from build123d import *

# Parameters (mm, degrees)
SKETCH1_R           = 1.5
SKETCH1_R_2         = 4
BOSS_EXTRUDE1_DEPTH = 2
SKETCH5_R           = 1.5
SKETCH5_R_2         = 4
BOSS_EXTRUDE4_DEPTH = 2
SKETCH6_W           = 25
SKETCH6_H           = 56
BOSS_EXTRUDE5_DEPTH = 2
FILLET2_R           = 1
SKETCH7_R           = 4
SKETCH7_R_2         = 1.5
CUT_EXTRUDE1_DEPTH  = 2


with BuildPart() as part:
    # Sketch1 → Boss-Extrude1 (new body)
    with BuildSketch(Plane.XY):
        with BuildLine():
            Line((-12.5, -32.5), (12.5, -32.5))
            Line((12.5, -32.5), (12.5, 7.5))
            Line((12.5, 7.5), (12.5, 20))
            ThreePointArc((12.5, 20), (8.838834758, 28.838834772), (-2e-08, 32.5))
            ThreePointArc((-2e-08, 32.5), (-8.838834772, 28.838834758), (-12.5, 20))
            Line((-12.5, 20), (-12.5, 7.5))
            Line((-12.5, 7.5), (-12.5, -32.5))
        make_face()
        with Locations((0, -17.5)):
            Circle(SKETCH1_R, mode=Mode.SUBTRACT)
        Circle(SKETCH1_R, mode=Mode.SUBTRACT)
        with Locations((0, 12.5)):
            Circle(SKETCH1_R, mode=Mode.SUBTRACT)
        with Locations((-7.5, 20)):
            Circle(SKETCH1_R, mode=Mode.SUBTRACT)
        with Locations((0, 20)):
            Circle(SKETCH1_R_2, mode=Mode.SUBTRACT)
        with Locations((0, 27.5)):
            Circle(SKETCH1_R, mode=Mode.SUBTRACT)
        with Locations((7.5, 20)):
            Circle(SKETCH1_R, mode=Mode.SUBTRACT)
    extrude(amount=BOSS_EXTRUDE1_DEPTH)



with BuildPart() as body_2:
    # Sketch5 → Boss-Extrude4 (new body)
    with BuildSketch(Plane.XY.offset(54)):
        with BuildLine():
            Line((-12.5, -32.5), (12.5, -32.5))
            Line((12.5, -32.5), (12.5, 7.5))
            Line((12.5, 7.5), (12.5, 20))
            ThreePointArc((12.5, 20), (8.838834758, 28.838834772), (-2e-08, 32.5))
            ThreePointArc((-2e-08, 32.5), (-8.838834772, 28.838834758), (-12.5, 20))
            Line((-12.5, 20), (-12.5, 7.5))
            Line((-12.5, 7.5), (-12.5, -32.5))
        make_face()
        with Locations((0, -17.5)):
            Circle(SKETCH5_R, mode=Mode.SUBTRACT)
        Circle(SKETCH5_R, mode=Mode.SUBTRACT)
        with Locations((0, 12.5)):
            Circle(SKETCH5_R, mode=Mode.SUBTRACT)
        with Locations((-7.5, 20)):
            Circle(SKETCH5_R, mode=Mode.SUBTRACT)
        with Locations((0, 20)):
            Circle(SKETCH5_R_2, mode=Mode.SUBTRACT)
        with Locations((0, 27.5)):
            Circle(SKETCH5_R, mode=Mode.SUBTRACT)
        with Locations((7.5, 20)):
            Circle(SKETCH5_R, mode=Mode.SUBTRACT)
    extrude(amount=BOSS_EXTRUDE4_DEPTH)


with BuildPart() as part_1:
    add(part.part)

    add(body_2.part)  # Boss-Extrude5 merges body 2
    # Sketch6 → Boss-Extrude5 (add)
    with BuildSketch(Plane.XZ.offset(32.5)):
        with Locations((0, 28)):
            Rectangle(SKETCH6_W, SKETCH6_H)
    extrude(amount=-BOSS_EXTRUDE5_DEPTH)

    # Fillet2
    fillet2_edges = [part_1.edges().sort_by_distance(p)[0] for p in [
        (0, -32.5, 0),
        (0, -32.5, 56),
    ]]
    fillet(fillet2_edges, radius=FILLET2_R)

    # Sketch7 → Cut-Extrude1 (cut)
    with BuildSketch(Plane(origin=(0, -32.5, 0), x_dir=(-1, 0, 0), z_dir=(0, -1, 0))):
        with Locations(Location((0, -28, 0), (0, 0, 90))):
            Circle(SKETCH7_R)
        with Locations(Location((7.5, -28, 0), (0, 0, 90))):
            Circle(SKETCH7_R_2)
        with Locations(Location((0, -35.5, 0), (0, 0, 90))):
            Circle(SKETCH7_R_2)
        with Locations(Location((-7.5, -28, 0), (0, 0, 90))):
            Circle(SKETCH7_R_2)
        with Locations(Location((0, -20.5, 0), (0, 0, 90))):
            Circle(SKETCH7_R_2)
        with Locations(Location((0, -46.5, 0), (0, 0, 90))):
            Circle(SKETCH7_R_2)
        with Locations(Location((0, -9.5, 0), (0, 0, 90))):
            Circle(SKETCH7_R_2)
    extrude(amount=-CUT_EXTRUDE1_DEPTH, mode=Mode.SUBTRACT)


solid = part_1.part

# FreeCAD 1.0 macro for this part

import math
import FreeCAD as App
import Part
import Sketcher


def edges_at(feature, points):
    """Names of the edges that pass closest to the given points."""
    edges = feature.Shape.Edges
    near = lambda p: min(range(len(edges)), key=lambda i: edges[i].distToShape(Part.Vertex(*p))[0])
    return sorted({f"Edge{near(p) + 1}" for p in points})

doc = App.newDocument("Part")
body = doc.addObject("PartDesign::Body", "Body")

# Sketch on XY plane
sketch1 = body.newObject("Sketcher::SketchObject", "Sketch")
sketch1.AttachmentSupport = (doc.getObject("XY_Plane"), [""])
sketch1.MapMode = "FlatFace"
sketch1.addGeometry([
    Part.LineSegment(App.Vector(-12.5, -32.5, 0), App.Vector(12.5, -32.5, 0)),  # 0
    Part.LineSegment(App.Vector(12.5, -32.5, 0), App.Vector(12.5, 20, 0)),  # 1
    Part.ArcOfCircle(Part.Circle(App.Vector(0, 20, 0), App.Vector(0, 0, 1), 12.5), math.radians(0), math.radians(90)),  # 2
    Part.ArcOfCircle(Part.Circle(App.Vector(0, 20, 0), App.Vector(0, 0, 1), 12.5), math.radians(90), math.radians(180)),  # 3
    Part.LineSegment(App.Vector(-12.5, 20, 0), App.Vector(-12.5, -32.5, 0)),  # 4
    Part.Circle(App.Vector(0, -17.5, 0), App.Vector(0, 0, 1), 1.5),  # 5
    Part.Circle(App.Vector(0, 0, 0), App.Vector(0, 0, 1), 1.5),  # 6
    Part.Circle(App.Vector(-7.5, 20, 0), App.Vector(0, 0, 1), 1.5),  # 7
    Part.Circle(App.Vector(0, 12.5, 0), App.Vector(0, 0, 1), 1.5),  # 8
    Part.Circle(App.Vector(0, 20, 0), App.Vector(0, 0, 1), 4),  # 9
    Part.Circle(App.Vector(0, 27.5, 0), App.Vector(0, 0, 1), 1.5),  # 10
    Part.Circle(App.Vector(7.5, 20, 0), App.Vector(0, 0, 1), 1.5),  # 11
], False)
sketch1.addConstraint([
    Sketcher.Constraint("Coincident", 0, 2, 1, 1),
    Sketcher.Constraint("Tangent", 1, 2, 2, 1),
    Sketcher.Constraint("Tangent", 2, 2, 3, 1),
    Sketcher.Constraint("Tangent", 3, 2, 4, 1),
    Sketcher.Constraint("Coincident", 4, 2, 0, 1),
    Sketcher.Constraint("Horizontal", 0),
    Sketcher.Constraint("Vertical", 1),
    Sketcher.Constraint("Vertical", 4),
    Sketcher.Constraint("Coincident", 6, 3, -1, 1),
    Sketcher.Constraint("Coincident", 9, 3, 2, 3),
    Sketcher.Constraint("Equal", 2, 3),
    Sketcher.Constraint("Equal", 5, 6),
    Sketcher.Constraint("Equal", 6, 7),
    Sketcher.Constraint("Equal", 7, 8),
    Sketcher.Constraint("Equal", 8, 10),
    Sketcher.Constraint("Equal", 10, 11),
    Sketcher.Constraint("Symmetric", 7, 3, 11, 3, -2),
    Sketcher.Constraint("PointOnObject", 2, 3, -2),
    Sketcher.Constraint("PointOnObject", 5, 3, -2),
    Sketcher.Constraint("PointOnObject", 8, 3, -2),
    Sketcher.Constraint("PointOnObject", 10, 3, -2),
    Sketcher.Constraint("PointOnObject", 2, 2, -2),
    Sketcher.Constraint("Horizontal", 3, 3, 7, 3),
    Sketcher.Constraint("Diameter", 5, 3.0),
    Sketcher.Constraint("Diameter", 9, 8.0),
    Sketcher.Constraint("Radius", 2, 12.5),
    Sketcher.Constraint("DistanceY", 1, 1, 1, 2, 52.5),
    Sketcher.Constraint("DistanceY", -1, 1, 2, 3, 20.0),
    Sketcher.Constraint("DistanceY", 5, 3, 8, 3, 30.0),
    Sketcher.Constraint("DistanceY", 8, 3, 10, 3, 15.0),
    Sketcher.Constraint("DistanceY", 0, 2, 5, 3, 15.0),
    Sketcher.Constraint("DistanceX", 11, 3, 0, 2, 5.0),
])
pad1 = body.newObject("PartDesign::Pad", "Pad")
pad1.Profile = sketch1
pad1.Length = 2
body2 = doc.addObject("PartDesign::Body", "Body001")

# Sketch on XY plane
sketch2 = body2.newObject("Sketcher::SketchObject", "Sketch001")
sketch2.AttachmentSupport = (doc.getObject("XY_Plane001"), [""])
sketch2.MapMode = "FlatFace"
sketch2.AttachmentOffset = App.Placement(App.Vector(0, 0, 54), App.Rotation())
sketch2.addGeometry([
    Part.LineSegment(App.Vector(-12.5, -32.5, 0), App.Vector(12.5, -32.5, 0)),  # 0
    Part.LineSegment(App.Vector(12.5, -32.5, 0), App.Vector(12.5, 20, 0)),  # 1
    Part.ArcOfCircle(Part.Circle(App.Vector(0, 20, 0), App.Vector(0, 0, 1), 12.5), math.radians(0), math.radians(90)),  # 2
    Part.ArcOfCircle(Part.Circle(App.Vector(0, 20, 0), App.Vector(0, 0, 1), 12.5), math.radians(90), math.radians(180)),  # 3
    Part.LineSegment(App.Vector(-12.5, 20, 0), App.Vector(-12.5, -32.5, 0)),  # 4
    Part.Circle(App.Vector(0, -17.5, 0), App.Vector(0, 0, 1), 1.5),  # 5
    Part.Circle(App.Vector(0, 0, 0), App.Vector(0, 0, 1), 1.5),  # 6
    Part.Circle(App.Vector(-7.5, 20, 0), App.Vector(0, 0, 1), 1.5),  # 7
    Part.Circle(App.Vector(0, 12.5, 0), App.Vector(0, 0, 1), 1.5),  # 8
    Part.Circle(App.Vector(0, 20, 0), App.Vector(0, 0, 1), 4),  # 9
    Part.Circle(App.Vector(0, 27.5, 0), App.Vector(0, 0, 1), 1.5),  # 10
    Part.Circle(App.Vector(7.5, 20, 0), App.Vector(0, 0, 1), 1.5),  # 11
], False)
sketch2.addConstraint([
    Sketcher.Constraint("Coincident", 0, 2, 1, 1),
    Sketcher.Constraint("Tangent", 1, 2, 2, 1),
    Sketcher.Constraint("Tangent", 2, 2, 3, 1),
    Sketcher.Constraint("Tangent", 3, 2, 4, 1),
    Sketcher.Constraint("Coincident", 4, 2, 0, 1),
    Sketcher.Constraint("Horizontal", 0),
    Sketcher.Constraint("Vertical", 1),
    Sketcher.Constraint("Vertical", 4),
    Sketcher.Constraint("Coincident", 6, 3, -1, 1),
    Sketcher.Constraint("Coincident", 9, 3, 2, 3),
    Sketcher.Constraint("Equal", 2, 3),
    Sketcher.Constraint("Equal", 5, 6),
    Sketcher.Constraint("Equal", 6, 7),
    Sketcher.Constraint("Equal", 7, 8),
    Sketcher.Constraint("Equal", 8, 10),
    Sketcher.Constraint("Equal", 10, 11),
    Sketcher.Constraint("Symmetric", 7, 3, 11, 3, -2),
    Sketcher.Constraint("PointOnObject", 2, 3, -2),
    Sketcher.Constraint("PointOnObject", 5, 3, -2),
    Sketcher.Constraint("PointOnObject", 8, 3, -2),
    Sketcher.Constraint("PointOnObject", 10, 3, -2),
    Sketcher.Constraint("PointOnObject", 2, 2, -2),
    Sketcher.Constraint("Horizontal", 3, 3, 7, 3),
    Sketcher.Constraint("Diameter", 5, 3.0),
    Sketcher.Constraint("Diameter", 9, 8.0),
    Sketcher.Constraint("Radius", 2, 12.5),
    Sketcher.Constraint("DistanceY", 1, 1, 1, 2, 52.5),
    Sketcher.Constraint("DistanceY", -1, 1, 2, 3, 20.0),
    Sketcher.Constraint("DistanceY", 5, 3, 8, 3, 30.0),
    Sketcher.Constraint("DistanceY", 8, 3, 10, 3, 15.0),
    Sketcher.Constraint("DistanceY", 0, 2, 5, 3, 15.0),
    Sketcher.Constraint("DistanceX", 11, 3, 0, 2, 5.0),
])
pad2 = body2.newObject("PartDesign::Pad", "Pad001")
pad2.Profile = sketch2
pad2.Length = 2
body.AllowCompound = True
doc.recompute()

boolean = body.newObject("PartDesign::Boolean", "Boolean")
boolean.Type = "Fuse"
boolean.addObjects([body2])

# Sketch on XZ plane
sketch3 = body.newObject("Sketcher::SketchObject", "Sketch002")
sketch3.AttachmentSupport = (doc.getObject("XZ_Plane"), [""])
sketch3.MapMode = "FlatFace"
sketch3.AttachmentOffset = App.Placement(App.Vector(0, 0, 32.5), App.Rotation())
sketch3.addGeometry([
    Part.LineSegment(App.Vector(-12.5, 56, 0), App.Vector(-12.5, 0, 0)),
    Part.LineSegment(App.Vector(-12.5, 0, 0), App.Vector(12.5, 0, 0)),
    Part.LineSegment(App.Vector(12.5, 0, 0), App.Vector(12.5, 56, 0)),
    Part.LineSegment(App.Vector(12.5, 56, 0), App.Vector(-12.5, 56, 0)),
], False)
sketch3.addConstraint([
    Sketcher.Constraint("Coincident", 0, 2, 1, 1),
    Sketcher.Constraint("Coincident", 1, 2, 2, 1),
    Sketcher.Constraint("Coincident", 2, 2, 3, 1),
    Sketcher.Constraint("Coincident", 3, 2, 0, 1),
    Sketcher.Constraint("Vertical", 0),
    Sketcher.Constraint("Horizontal", 1),
    Sketcher.Constraint("Vertical", 2),
    Sketcher.Constraint("Horizontal", 3),
    Sketcher.Constraint("Symmetric", 0, 2, 1, 2, -1, 1),
    Sketcher.Constraint("DistanceX", 1, 1, 1, 2, 25.0),
    Sketcher.Constraint("DistanceY", 0, 2, 0, 1, 56.0),
])
pad3 = body.newObject("PartDesign::Pad", "Pad002")
pad3.Profile = sketch3
pad3.Length = 2
pad3.Reversed = True
doc.recompute()

fillet = body.newObject("PartDesign::Fillet", "Fillet")
fillet.Base = (pad3, edges_at(pad3, [(0, -32.5, 0), (0, -32.5, 56)]))
fillet.Radius = 1

# Sketch on XZ plane
sketch4 = body.newObject("Sketcher::SketchObject", "Sketch003")
sketch4.AttachmentSupport = (doc.getObject("XZ_Plane"), [""])
sketch4.MapMode = "FlatFace"
sketch4.AttachmentOffset = App.Placement(App.Vector(0, 0, 32.5), App.Rotation())
sketch4.addGeometry([
    Part.Circle(App.Vector(0, 28, 0), App.Vector(0, 0, 1), 4),  # 0
    Part.Circle(App.Vector(-7.5, 28, 0), App.Vector(0, 0, 1), 1.5),  # 1
    Part.Circle(App.Vector(0, 35.5, 0), App.Vector(0, 0, 1), 1.5),  # 2
    Part.Circle(App.Vector(7.5, 28, 0), App.Vector(0, 0, 1), 1.5),  # 3
    Part.Circle(App.Vector(0, 20.5, 0), App.Vector(0, 0, 1), 1.5),  # 4
    Part.Circle(App.Vector(0, 46.5, 0), App.Vector(0, 0, 1), 1.5),  # 5
    Part.Circle(App.Vector(0, 9.5, 0), App.Vector(0, 0, 1), 1.5),  # 6
], False)
sketch4.addConstraint([
    Sketcher.Constraint("Equal", 1, 2),
    Sketcher.Constraint("Equal", 2, 3),
    Sketcher.Constraint("Equal", 3, 4),
    Sketcher.Constraint("Equal", 4, 5),
    Sketcher.Constraint("Equal", 5, 6),
    Sketcher.Constraint("Symmetric", 1, 3, 3, 3, -2),
    Sketcher.Constraint("PointOnObject", 0, 3, -2),
    Sketcher.Constraint("PointOnObject", 2, 3, -2),
    Sketcher.Constraint("PointOnObject", 4, 3, -2),
    Sketcher.Constraint("PointOnObject", 5, 3, -2),
    Sketcher.Constraint("PointOnObject", 6, 3, -2),
    Sketcher.Constraint("Horizontal", 0, 3, 1, 3),
    Sketcher.Constraint("Diameter", 0, 8.0),
    Sketcher.Constraint("Diameter", 1, 3.0),
    Sketcher.Constraint("DistanceY", -1, 1, 0, 3, 28.0),
    Sketcher.Constraint("DistanceX", 1, 3, 3, 3, 15.0),
    Sketcher.Constraint("DistanceY", 4, 3, 2, 3, 15.0),
    Sketcher.Constraint("DistanceY", 2, 3, 5, 3, 11.0),
    Sketcher.Constraint("DistanceY", 6, 3, 4, 3, 11.0),
    Sketcher.Constraint("DistanceY", -1, 1, 2, 3, 35.5),
])
pocket1 = body.newObject("PartDesign::Pocket", "Pocket")
pocket1.Profile = sketch4
pocket1.Length = 2

doc.recompute()
